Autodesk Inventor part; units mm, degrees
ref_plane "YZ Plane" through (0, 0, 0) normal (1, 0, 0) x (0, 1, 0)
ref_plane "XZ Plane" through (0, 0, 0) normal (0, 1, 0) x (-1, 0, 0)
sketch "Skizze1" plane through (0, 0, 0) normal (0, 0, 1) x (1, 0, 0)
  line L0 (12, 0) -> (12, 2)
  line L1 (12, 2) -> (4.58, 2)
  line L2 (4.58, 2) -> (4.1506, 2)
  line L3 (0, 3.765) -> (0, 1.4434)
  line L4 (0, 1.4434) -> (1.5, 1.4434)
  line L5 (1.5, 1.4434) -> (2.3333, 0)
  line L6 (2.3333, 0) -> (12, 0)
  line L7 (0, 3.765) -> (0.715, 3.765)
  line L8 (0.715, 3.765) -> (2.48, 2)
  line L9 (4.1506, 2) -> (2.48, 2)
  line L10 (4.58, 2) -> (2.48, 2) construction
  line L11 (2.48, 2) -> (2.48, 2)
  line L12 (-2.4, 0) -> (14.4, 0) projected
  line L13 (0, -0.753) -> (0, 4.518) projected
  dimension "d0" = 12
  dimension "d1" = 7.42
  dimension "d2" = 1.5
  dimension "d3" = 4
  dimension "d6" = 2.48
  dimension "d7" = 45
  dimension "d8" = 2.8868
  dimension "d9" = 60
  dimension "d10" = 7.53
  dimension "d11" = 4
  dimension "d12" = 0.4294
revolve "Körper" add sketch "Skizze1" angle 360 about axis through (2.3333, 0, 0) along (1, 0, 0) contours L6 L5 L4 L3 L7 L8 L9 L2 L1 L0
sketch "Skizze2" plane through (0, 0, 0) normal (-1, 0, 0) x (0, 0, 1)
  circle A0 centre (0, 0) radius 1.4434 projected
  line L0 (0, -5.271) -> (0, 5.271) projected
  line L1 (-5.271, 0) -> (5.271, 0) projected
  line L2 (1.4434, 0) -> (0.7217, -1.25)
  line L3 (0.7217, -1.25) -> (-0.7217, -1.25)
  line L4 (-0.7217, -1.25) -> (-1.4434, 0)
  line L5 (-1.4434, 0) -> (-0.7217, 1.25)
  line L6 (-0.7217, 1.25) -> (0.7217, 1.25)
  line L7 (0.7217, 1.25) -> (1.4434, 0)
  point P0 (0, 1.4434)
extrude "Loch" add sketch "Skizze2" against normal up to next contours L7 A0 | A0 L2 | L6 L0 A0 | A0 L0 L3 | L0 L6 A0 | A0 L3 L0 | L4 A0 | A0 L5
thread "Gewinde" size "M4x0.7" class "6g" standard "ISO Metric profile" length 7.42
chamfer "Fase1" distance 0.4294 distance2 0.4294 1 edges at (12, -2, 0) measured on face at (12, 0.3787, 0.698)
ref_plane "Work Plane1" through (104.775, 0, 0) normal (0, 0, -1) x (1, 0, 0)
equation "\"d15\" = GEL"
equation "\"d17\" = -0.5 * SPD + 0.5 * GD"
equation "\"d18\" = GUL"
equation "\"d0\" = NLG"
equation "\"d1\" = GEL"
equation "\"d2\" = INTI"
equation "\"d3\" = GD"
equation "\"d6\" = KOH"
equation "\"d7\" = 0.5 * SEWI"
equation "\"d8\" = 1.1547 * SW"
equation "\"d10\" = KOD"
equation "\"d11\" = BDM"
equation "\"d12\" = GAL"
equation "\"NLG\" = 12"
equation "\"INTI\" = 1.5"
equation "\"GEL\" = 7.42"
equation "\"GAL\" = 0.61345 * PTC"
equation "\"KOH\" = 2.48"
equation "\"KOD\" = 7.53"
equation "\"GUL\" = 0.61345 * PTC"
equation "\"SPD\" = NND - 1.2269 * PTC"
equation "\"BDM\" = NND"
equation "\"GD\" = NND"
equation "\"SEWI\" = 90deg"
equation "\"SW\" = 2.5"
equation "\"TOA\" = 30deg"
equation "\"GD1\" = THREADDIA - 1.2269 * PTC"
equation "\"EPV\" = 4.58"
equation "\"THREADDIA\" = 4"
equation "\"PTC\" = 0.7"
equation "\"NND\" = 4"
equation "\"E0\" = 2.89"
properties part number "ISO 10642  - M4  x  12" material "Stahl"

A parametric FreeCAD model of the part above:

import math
import FreeCAD as App
import Part
import Sketcher
from FreeCAD import Vector
Q = App.Units.Quantity


def edges_at(feature, points):
    """Names of the edges that pass closest to the given points."""
    edges = feature.Shape.Edges
    near = lambda p: min(range(len(edges)), key=lambda i: edges[i].distToShape(Part.Vertex(*p))[0])
    return sorted({f"Edge{near(p) + 1}" for p in points})

doc = App.newDocument("Part")
body = doc.addObject("PartDesign::Body", "Body")

sketch1 = body.newObject("Sketcher::SketchObject", "Sketch")
sketch1.AttachmentSupport = (doc.getObject("XY_Plane"), [""])
sketch1.MapMode = "FlatFace"
sketch1.addGeometry([
    Part.LineSegment(Vector(2.3, 0, 0), Vector(12, 0, 0)),
    Part.LineSegment(Vector(12, 0, 0), Vector(12, 2, 0)),
    Part.LineSegment(Vector(12, 2, 0), Vector(2.5, 2, 0)),
    Part.LineSegment(Vector(2.5, 2, 0), Vector(0.7, 3.8, 0)),
    Part.LineSegment(Vector(0.7, 3.8, 0), Vector(0, 3.8, 0)),
    Part.LineSegment(Vector(0, 3.8, 0), Vector(0, 1.4, 0)),
    Part.LineSegment(Vector(0, 1.4, 0), Vector(1.5, 1.4, 0)),
    Part.LineSegment(Vector(1.5, 1.4, 0), Vector(2.3, 0, 0)),
], False)
sketch1.addConstraint([
    Sketcher.Constraint("Coincident", 0, 2, 1, 1),
    Sketcher.Constraint("Coincident", 1, 2, 2, 1),
    Sketcher.Constraint("Coincident", 2, 2, 3, 1),
    Sketcher.Constraint("Coincident", 3, 2, 4, 1),
    Sketcher.Constraint("Coincident", 4, 2, 5, 1),
    Sketcher.Constraint("Coincident", 5, 2, 6, 1),
    Sketcher.Constraint("Coincident", 6, 2, 7, 1),
    Sketcher.Constraint("Coincident", 7, 2, 0, 1),
    Sketcher.Constraint("Horizontal", 0),
    Sketcher.Constraint("Vertical", 1),
    Sketcher.Constraint("Horizontal", 2),
    Sketcher.Constraint("Horizontal", 4),
    Sketcher.Constraint("Vertical", 5),
    Sketcher.Constraint("Horizontal", 6),
    Sketcher.Constraint("PointOnObject", 0, 2, -1),
    Sketcher.Constraint("PointOnObject", 4, 2, -2),
    Sketcher.Constraint("DistanceX", 6, 1, 6, 2, Q("1.5 mm")),
    Sketcher.Constraint("DistanceX", -1, 1, 0, 2, Q("12 mm")),
    Sketcher.Constraint("DistanceY", 1, 1, 1, 2, Q("2 mm")),
    Sketcher.Constraint("DistanceX", -1, 1, 2, 2, Q("2.48 mm")),
    Sketcher.Constraint("Angle", 3, Q("135 deg")),
    Sketcher.Constraint("DistanceX", 4, 2, 4, 1, Q("0.715 mm")),
    Sketcher.Constraint("DistanceX", 0, 1, 0, 2, Q("9.6667 mm")),
    Sketcher.Constraint("DistanceY", 5, 2, 5, 1, Q("2.3216 mm")),
])
revolution = body.newObject("PartDesign::Revolution", "Revolution")
revolution.Profile = sketch1
revolution.ReferenceAxis = (sketch1, ["H_Axis"])
revolution.Angle = 360

sketch2 = body.newObject("Sketcher::SketchObject", "Sketch001")
sketch2.AttachmentSupport = (doc.getObject("YZ_Plane"), [""])
sketch2.MapMode = "FlatFace"
sketch2.addGeometry([
    Part.LineSegment(Vector(1.2, 0.7, 0), Vector(0, 1.4, 0)),
    Part.ArcOfCircle(Part.Circle(Vector(0, 0, 0), Vector(0, 0, 1), 1.4), math.radians(30), math.radians(90)),
    Part.ArcOfCircle(Part.Circle(Vector(0, 0, 0), Vector(0, 0, 1), 1.4), math.radians(90), math.radians(150)),
    Part.LineSegment(Vector(0, 1.4, 0), Vector(-1.2, 0.7, 0)),
    Part.ArcOfCircle(Part.Circle(Vector(0, 0, 0), Vector(0, 0, 1), 1.4), math.radians(-30), math.radians(30)),
    Part.LineSegment(Vector(1.2, 0.7, 0), Vector(1.2, -0.7, 0)),
    Part.LineSegment(Vector(-1.2, 0.7, 0), Vector(-1.2, -0.7, 0)),
    Part.ArcOfCircle(Part.Circle(Vector(0, 0, 0), Vector(0, 0, 1), 1.4), math.radians(150), math.radians(210)),
    Part.LineSegment(Vector(-1.2, -0.7, 0), Vector(0, -1.4, 0)),
    Part.ArcOfCircle(Part.Circle(Vector(0, 0, 0), Vector(0, 0, 1), 1.4), math.radians(-150), math.radians(-90)),
    Part.ArcOfCircle(Part.Circle(Vector(0, 0, 0), Vector(0, 0, 1), 1.4), math.radians(-90), math.radians(-30)),
    Part.LineSegment(Vector(0, -1.4, 0), Vector(1.2, -0.7, 0)),
], False)
sketch2.addConstraint([
    Sketcher.Constraint("Coincident", 0, 1, 1, 1),
    Sketcher.Constraint("Coincident", 1, 2, 0, 2),
    Sketcher.Constraint("Coincident", 2, 1, 3, 1),
    Sketcher.Constraint("Coincident", 3, 2, 2, 2),
    Sketcher.Constraint("Coincident", 4, 1, 5, 2),
    Sketcher.Constraint("Coincident", 5, 1, 4, 2),
    Sketcher.Constraint("Coincident", 6, 1, 7, 1),
    Sketcher.Constraint("Coincident", 7, 2, 6, 2),
    Sketcher.Constraint("Coincident", 8, 1, 9, 1),
    Sketcher.Constraint("Coincident", 9, 2, 8, 2),
    Sketcher.Constraint("Coincident", 10, 1, 11, 1),
    Sketcher.Constraint("Coincident", 11, 2, 10, 2),
    Sketcher.Constraint("Vertical", 5),
    Sketcher.Constraint("Vertical", 6),
    Sketcher.Constraint("Coincident", 1, 3, -1, 1),
    Sketcher.Constraint("Coincident", 2, 3, -1, 1),
    Sketcher.Constraint("Coincident", 4, 3, -1, 1),
    Sketcher.Constraint("Coincident", 7, 3, -1, 1),
    Sketcher.Constraint("Coincident", 9, 3, -1, 1),
    Sketcher.Constraint("Coincident", 10, 3, -1, 1),
    Sketcher.Constraint("Coincident", 2, 1, 1, 2),
    Sketcher.Constraint("Coincident", 5, 1, 0, 1),
    Sketcher.Constraint("Coincident", 6, 1, 3, 2),
    Sketcher.Constraint("Coincident", 8, 1, 7, 2),
    Sketcher.Constraint("Coincident", 10, 1, 9, 2),
    Sketcher.Constraint("PointOnObject", 1, 2, -2),
    Sketcher.Constraint("PointOnObject", 9, 2, -2),
    Sketcher.Constraint("Parallel", 0, 8),
    Sketcher.Constraint("Parallel", 3, 11),
    Sketcher.Constraint("Angle", 0, Q("149.9996 deg")),
    Sketcher.Constraint("Radius", 1, Q("1.4434 mm")),
])
pad1 = body.newObject("PartDesign::Pad", "Pad")
pad1.Profile = sketch2
pad1.Type = "UpToFirst"
doc.recompute()

chamfer = body.newObject("PartDesign::Chamfer", "Chamfer")
chamfer.Base = (pad1, edges_at(pad1, [(12, -2, 0)]))
chamfer.ChamferType = "Two distances"
chamfer.Size = 0.4294
chamfer.Size2 = 0.4294

doc.recompute()
